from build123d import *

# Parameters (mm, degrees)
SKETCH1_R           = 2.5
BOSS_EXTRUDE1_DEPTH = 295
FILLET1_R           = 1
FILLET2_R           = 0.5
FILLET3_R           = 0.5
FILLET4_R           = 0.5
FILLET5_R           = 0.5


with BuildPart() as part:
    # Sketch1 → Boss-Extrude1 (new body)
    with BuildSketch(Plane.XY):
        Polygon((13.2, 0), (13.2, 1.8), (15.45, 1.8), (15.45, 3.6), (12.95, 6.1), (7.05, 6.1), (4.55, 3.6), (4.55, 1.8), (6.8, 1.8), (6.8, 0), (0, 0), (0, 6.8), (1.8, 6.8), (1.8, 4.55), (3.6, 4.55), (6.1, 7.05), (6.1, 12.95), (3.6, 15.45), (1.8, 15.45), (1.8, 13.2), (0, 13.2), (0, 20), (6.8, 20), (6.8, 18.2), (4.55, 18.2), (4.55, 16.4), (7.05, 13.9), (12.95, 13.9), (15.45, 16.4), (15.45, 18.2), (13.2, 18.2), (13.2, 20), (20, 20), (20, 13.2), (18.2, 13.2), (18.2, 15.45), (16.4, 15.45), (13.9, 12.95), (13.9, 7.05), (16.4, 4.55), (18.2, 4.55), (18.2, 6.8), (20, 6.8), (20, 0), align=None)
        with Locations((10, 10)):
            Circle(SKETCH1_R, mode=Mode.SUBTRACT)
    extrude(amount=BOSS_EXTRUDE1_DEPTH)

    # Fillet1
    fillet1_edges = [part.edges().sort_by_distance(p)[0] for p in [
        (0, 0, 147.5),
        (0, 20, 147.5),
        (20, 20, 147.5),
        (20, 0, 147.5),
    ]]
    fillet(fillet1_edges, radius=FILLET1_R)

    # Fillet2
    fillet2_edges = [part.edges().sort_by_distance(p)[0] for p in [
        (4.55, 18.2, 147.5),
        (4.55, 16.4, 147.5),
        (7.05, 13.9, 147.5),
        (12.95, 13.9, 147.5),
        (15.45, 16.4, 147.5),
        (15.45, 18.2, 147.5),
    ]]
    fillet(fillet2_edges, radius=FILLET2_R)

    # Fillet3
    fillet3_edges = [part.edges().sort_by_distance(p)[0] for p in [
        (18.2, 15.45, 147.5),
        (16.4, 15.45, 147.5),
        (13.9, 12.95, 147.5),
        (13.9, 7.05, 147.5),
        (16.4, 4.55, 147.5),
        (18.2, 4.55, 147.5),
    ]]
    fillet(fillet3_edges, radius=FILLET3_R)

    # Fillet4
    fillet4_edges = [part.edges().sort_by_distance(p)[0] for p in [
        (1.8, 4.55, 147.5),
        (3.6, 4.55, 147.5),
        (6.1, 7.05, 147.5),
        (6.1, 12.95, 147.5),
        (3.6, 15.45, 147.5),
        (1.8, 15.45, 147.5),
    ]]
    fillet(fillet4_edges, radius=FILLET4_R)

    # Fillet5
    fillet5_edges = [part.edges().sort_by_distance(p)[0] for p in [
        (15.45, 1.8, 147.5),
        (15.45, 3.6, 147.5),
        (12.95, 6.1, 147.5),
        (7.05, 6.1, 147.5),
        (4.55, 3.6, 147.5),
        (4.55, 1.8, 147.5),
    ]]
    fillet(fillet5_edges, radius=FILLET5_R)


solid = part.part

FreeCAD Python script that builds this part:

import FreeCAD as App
import Part
import Sketcher
Q = App.Units.Quantity


def edges_at(feature, points):
    """Names of the edges that pass closest to the given points."""
    edges = feature.Shape.Edges
    near = lambda p: min(range(len(edges)), key=lambda i: edges[i].distToShape(Part.Vertex(*p))[0])
    return sorted({f"Edge{near(p) + 1}" for p in points})

doc = App.newDocument("Part")
body = doc.addObject("PartDesign::Body", "Body")

# Sketch on XY plane
sketch1 = doc.addObject("Sketcher::SketchObject", "Sketch")
body.addObject(sketch1)
sketch1.AttachmentSupport = (doc.XY_Plane, [""])
sketch1.MapMode = "FlatFace"
sketch1.addGeometry([
    Part.LineSegment(App.Vector(13.2, 1.8, 0), App.Vector(13.2, 0, 0)),  # 0
    Part.LineSegment(App.Vector(13.2, 0, 0), App.Vector(20, 0, 0)),  # 1
    Part.LineSegment(App.Vector(20, 0, 0), App.Vector(20, 6.8, 0)),  # 2
    Part.LineSegment(App.Vector(20, 6.8, 0), App.Vector(18.2, 6.8, 0)),  # 3
    Part.LineSegment(App.Vector(18.2, 6.8, 0), App.Vector(18.2, 4.5, 0)),  # 4
    Part.LineSegment(App.Vector(18.2, 4.5, 0), App.Vector(16.4, 4.5, 0)),  # 5
    Part.LineSegment(App.Vector(16.4, 4.5, 0), App.Vector(13.9, 7, 0)),  # 6
    Part.LineSegment(App.Vector(13.9, 7, 0), App.Vector(13.9, 12.9, 0)),  # 7
    Part.LineSegment(App.Vector(13.9, 12.9, 0), App.Vector(16.4, 15.4, 0)),  # 8
    Part.LineSegment(App.Vector(16.4, 15.4, 0), App.Vector(18.2, 15.4, 0)),  # 9
    Part.LineSegment(App.Vector(18.2, 15.4, 0), App.Vector(18.2, 13.2, 0)),  # 10
    Part.LineSegment(App.Vector(18.2, 13.2, 0), App.Vector(20, 13.2, 0)),  # 11
    Part.LineSegment(App.Vector(20, 13.2, 0), App.Vector(20, 20, 0)),  # 12
    Part.LineSegment(App.Vector(20, 20, 0), App.Vector(13.2, 20, 0)),  # 13
    Part.LineSegment(App.Vector(13.2, 20, 0), App.Vector(13.2, 18.2, 0)),  # 14
    Part.LineSegment(App.Vector(13.2, 18.2, 0), App.Vector(15.4, 18.2, 0)),  # 15
    Part.LineSegment(App.Vector(15.4, 18.2, 0), App.Vector(15.4, 16.4, 0)),  # 16
    Part.LineSegment(App.Vector(15.4, 16.4, 0), App.Vector(12.9, 13.9, 0)),  # 17
    Part.LineSegment(App.Vector(12.9, 13.9, 0), App.Vector(7, 13.9, 0)),  # 18
    Part.LineSegment(App.Vector(7, 13.9, 0), App.Vector(4.5, 16.4, 0)),  # 19
    Part.LineSegment(App.Vector(4.5, 16.4, 0), App.Vector(4.5, 18.2, 0)),  # 20
    Part.LineSegment(App.Vector(4.5, 18.2, 0), App.Vector(6.8, 18.2, 0)),  # 21
    Part.LineSegment(App.Vector(6.8, 18.2, 0), App.Vector(6.8, 20, 0)),  # 22
    Part.LineSegment(App.Vector(6.8, 20, 0), App.Vector(0, 20, 0)),  # 23
    Part.LineSegment(App.Vector(0, 20, 0), App.Vector(0, 13.2, 0)),  # 24
    Part.LineSegment(App.Vector(0, 13.2, 0), App.Vector(1.8, 13.2, 0)),  # 25
    Part.LineSegment(App.Vector(1.8, 13.2, 0), App.Vector(1.8, 15.4, 0)),  # 26
    Part.LineSegment(App.Vector(1.8, 15.4, 0), App.Vector(3.6, 15.4, 0)),  # 27
    Part.LineSegment(App.Vector(3.6, 15.4, 0), App.Vector(6.1, 12.9, 0)),  # 28
    Part.LineSegment(App.Vector(6.1, 12.9, 0), App.Vector(6.1, 7, 0)),  # 29
    Part.LineSegment(App.Vector(6.1, 7, 0), App.Vector(3.6, 4.5, 0)),  # 30
    Part.LineSegment(App.Vector(3.6, 4.5, 0), App.Vector(1.8, 4.5, 0)),  # 31
    Part.LineSegment(App.Vector(1.8, 4.5, 0), App.Vector(1.8, 6.8, 0)),  # 32
    Part.LineSegment(App.Vector(1.8, 6.8, 0), App.Vector(0, 6.8, 0)),  # 33
    Part.LineSegment(App.Vector(0, 6.8, 0), App.Vector(0, 0, 0)),  # 34
    Part.LineSegment(App.Vector(0, 0, 0), App.Vector(6.8, 0, 0)),  # 35
    Part.LineSegment(App.Vector(6.8, 0, 0), App.Vector(6.8, 1.8, 0)),  # 36
    Part.LineSegment(App.Vector(6.8, 1.8, 0), App.Vector(4.5, 1.8, 0)),  # 37
    Part.LineSegment(App.Vector(4.5, 1.8, 0), App.Vector(4.5, 3.6, 0)),  # 38
    Part.LineSegment(App.Vector(4.5, 3.6, 0), App.Vector(7, 6.1, 0)),  # 39
    Part.LineSegment(App.Vector(7, 6.1, 0), App.Vector(12.9, 6.1, 0)),  # 40
    Part.LineSegment(App.Vector(12.9, 6.1, 0), App.Vector(15.4, 3.6, 0)),  # 41
    Part.LineSegment(App.Vector(15.4, 3.6, 0), App.Vector(15.4, 1.8, 0)),  # 42
    Part.LineSegment(App.Vector(15.4, 1.8, 0), App.Vector(13.2, 1.8, 0)),  # 43
    Part.Circle(App.Vector(10, 10, 0), App.Vector(0, 0, 1), 2.5),  # 44
], False)
sketch1.addConstraint([
    Sketcher.Constraint("Coincident", 0, 2, 1, 1),
    Sketcher.Constraint("Coincident", 1, 2, 2, 1),
    Sketcher.Constraint("Coincident", 2, 2, 3, 1),
    Sketcher.Constraint("Coincident", 3, 2, 4, 1),
    Sketcher.Constraint("Coincident", 4, 2, 5, 1),
    Sketcher.Constraint("Coincident", 5, 2, 6, 1),
    Sketcher.Constraint("Coincident", 6, 2, 7, 1),
    Sketcher.Constraint("Coincident", 7, 2, 8, 1),
    Sketcher.Constraint("Coincident", 8, 2, 9, 1),
    Sketcher.Constraint("Coincident", 9, 2, 10, 1),
    Sketcher.Constraint("Coincident", 10, 2, 11, 1),
    Sketcher.Constraint("Coincident", 11, 2, 12, 1),
    Sketcher.Constraint("Coincident", 12, 2, 13, 1),
    Sketcher.Constraint("Coincident", 13, 2, 14, 1),
    Sketcher.Constraint("Coincident", 14, 2, 15, 1),
    Sketcher.Constraint("Coincident", 15, 2, 16, 1),
    Sketcher.Constraint("Coincident", 16, 2, 17, 1),
    Sketcher.Constraint("Coincident", 17, 2, 18, 1),
    Sketcher.Constraint("Coincident", 18, 2, 19, 1),
    Sketcher.Constraint("Coincident", 19, 2, 20, 1),
    Sketcher.Constraint("Coincident", 20, 2, 21, 1),
    Sketcher.Constraint("Coincident", 21, 2, 22, 1),
    Sketcher.Constraint("Coincident", 22, 2, 23, 1),
    Sketcher.Constraint("Coincident", 23, 2, 24, 1),
    Sketcher.Constraint("Coincident", 24, 2, 25, 1),
    Sketcher.Constraint("Coincident", 25, 2, 26, 1),
    Sketcher.Constraint("Coincident", 26, 2, 27, 1),
    Sketcher.Constraint("Coincident", 27, 2, 28, 1),
    Sketcher.Constraint("Coincident", 28, 2, 29, 1),
    Sketcher.Constraint("Coincident", 29, 2, 30, 1),
    Sketcher.Constraint("Coincident", 30, 2, 31, 1),
    Sketcher.Constraint("Coincident", 31, 2, 32, 1),
    Sketcher.Constraint("Coincident", 32, 2, 33, 1),
    Sketcher.Constraint("Coincident", 33, 2, 34, 1),
    Sketcher.Constraint("Coincident", 34, 2, 35, 1),
    Sketcher.Constraint("Coincident", 35, 2, 36, 1),
    Sketcher.Constraint("Coincident", 36, 2, 37, 1),
    Sketcher.Constraint("Coincident", 37, 2, 38, 1),
    Sketcher.Constraint("Coincident", 38, 2, 39, 1),
    Sketcher.Constraint("Coincident", 39, 2, 40, 1),
    Sketcher.Constraint("Coincident", 40, 2, 41, 1),
    Sketcher.Constraint("Coincident", 41, 2, 42, 1),
    Sketcher.Constraint("Coincident", 42, 2, 43, 1),
    Sketcher.Constraint("Coincident", 43, 2, 0, 1),
    Sketcher.Constraint("Vertical", 0),
    Sketcher.Constraint("Horizontal", 1),
    Sketcher.Constraint("Vertical", 2),
    Sketcher.Constraint("Horizontal", 3),
    Sketcher.Constraint("Vertical", 4),
    Sketcher.Constraint("Horizontal", 5),
    Sketcher.Constraint("Vertical", 7),
    Sketcher.Constraint("Horizontal", 9),
    Sketcher.Constraint("Vertical", 10),
    Sketcher.Constraint("Horizontal", 11),
    Sketcher.Constraint("Vertical", 12),
    Sketcher.Constraint("Horizontal", 13),
    Sketcher.Constraint("Vertical", 14),
    Sketcher.Constraint("Horizontal", 15),
    Sketcher.Constraint("Vertical", 16),
    Sketcher.Constraint("Horizontal", 18),
    Sketcher.Constraint("Vertical", 20),
    Sketcher.Constraint("Horizontal", 21),
    Sketcher.Constraint("Vertical", 22),
    Sketcher.Constraint("Horizontal", 23),
    Sketcher.Constraint("Vertical", 24),
    Sketcher.Constraint("Horizontal", 25),
    Sketcher.Constraint("Vertical", 26),
    Sketcher.Constraint("Horizontal", 27),
    Sketcher.Constraint("Vertical", 29),
    Sketcher.Constraint("Horizontal", 31),
    Sketcher.Constraint("Vertical", 32),
    Sketcher.Constraint("Horizontal", 33),
    Sketcher.Constraint("Vertical", 34),
    Sketcher.Constraint("Horizontal", 35),
    Sketcher.Constraint("Vertical", 36),
    Sketcher.Constraint("Horizontal", 37),
    Sketcher.Constraint("Vertical", 38),
    Sketcher.Constraint("Horizontal", 40),
    Sketcher.Constraint("Vertical", 42),
    Sketcher.Constraint("Horizontal", 43),
    Sketcher.Constraint("Coincident", 34, 2, -1, 1),
    Sketcher.Constraint("PointOnObject", 0, 2, -1),
    Sketcher.Constraint("PointOnObject", 23, 2, -2),
    Sketcher.Constraint("Perpendicular", 6, 8),
    Sketcher.Constraint("Parallel", 8, 17),
    Sketcher.Constraint("Perpendicular", 17, 19),
    Sketcher.Constraint("Parallel", 19, 28),
    Sketcher.Constraint("Perpendicular", 28, 30),
    Sketcher.Constraint("Parallel", 30, 39),
    Sketcher.Constraint("Perpendicular", 39, 41),
    Sketcher.Constraint("Horizontal", 16, 2, 19, 2),
    Sketcher.Constraint("Horizontal", 15, 2, 20, 2),
    Sketcher.Constraint("Horizontal", 13, 2, 22, 2),
    Sketcher.Constraint("Horizontal", 11, 2, 24, 2),
    Sketcher.Constraint("Horizontal", 9, 2, 26, 2),
    Sketcher.Constraint("Horizontal", 7, 2, 28, 2),
    Sketcher.Constraint("Horizontal", 6, 2, 29, 2),
    Sketcher.Constraint("Horizontal", 5, 2, 30, 2),
    Sketcher.Constraint("Horizontal", 3, 2, 32, 2),
    Sketcher.Constraint("Horizontal", 38, 2, 41, 2),
    Sketcher.Constraint("Horizontal", 37, 2, 42, 2),
    Sketcher.Constraint("Vertical", 5, 2, 8, 2),
    Sketcher.Constraint("Vertical", 4, 2, 9, 2),
    Sketcher.Constraint("Vertical", 2, 2, 11, 2),
    Sketcher.Constraint("Vertical", 0, 2, 13, 2),
    Sketcher.Constraint("Vertical", 27, 2, 30, 2),
    Sketcher.Constraint("Vertical", 26, 2, 31, 2),
    Sketcher.Constraint("Vertical", 22, 2, 35, 2),
    Sketcher.Constraint("Vertical", 20, 2, 37, 2),
    Sketcher.Constraint("Vertical", 18, 2, 39, 2),
    Sketcher.Constraint("Vertical", 17, 2, 40, 2),
    Sketcher.Constraint("Equal", 3, 5),
    Sketcher.Constraint("Equal", 15, 21),
    Sketcher.Constraint("Equal", 13, 23),
    Sketcher.Constraint("Equal", 11, 25),
    Sketcher.Constraint("Equal", 25, 27),
    Sketcher.Constraint("Equal", 33, 0),
    Sketcher.Constraint("Equal", 35, 2),
    Sketcher.Constraint("Equal", 43, 4),
    Sketcher.Constraint("Equal", 40, 7),
    Sketcher.Constraint("Equal", 4, 10),
    Sketcher.Constraint("Equal", 2, 12),
    Sketcher.Constraint("Equal", 0, 14),
    Sketcher.Constraint("Equal", 14, 16),
    Sketcher.Constraint("Equal", 36, 38),
    Sketcher.Constraint("Equal", 8, 17),
    Sketcher.Constraint("Diameter", 44, Q("5 mm")),
    Sketcher.Constraint("DistanceX", 1, 1, 1, 2, Q("6.8 mm")),
    Sketcher.Constraint("DistanceX", 3, 2, 3, 1, Q("1.8 mm")),
    Sketcher.Constraint("DistanceX", 18, 2, 18, 1, Q("5.9 mm")),
    Sketcher.Constraint("DistanceX", -1, 1, 44, 3, Q("10 mm")),
    Sketcher.Constraint("DistanceY", -1, 1, 44, 3, Q("10 mm")),
    Sketcher.Constraint("DistanceX", -1, 1, 1, 2, Q("20 mm")),
    Sketcher.Constraint("DistanceX", 15, 1, 15, 2, Q("2.25 mm")),
])
pad1 = doc.addObject("PartDesign::Pad", "Pad")
body.addObject(pad1)
pad1.Profile = sketch1
pad1.Length = 295
doc.recompute()

fillet = doc.addObject("PartDesign::Fillet", "Fillet")
body.addObject(fillet)
fillet.Base = (pad1, edges_at(pad1, [
    (0, 0, 147.5),
    (0, 20, 147.5),
    (20, 20, 147.5),
    (20, 0, 147.5),
]))
fillet.Radius = 1
doc.recompute()

fillet2 = doc.addObject("PartDesign::Fillet", "Fillet001")
body.addObject(fillet2)
fillet2.Base = (fillet, edges_at(fillet, [
    (4.55, 18.2, 147.5),
    (4.55, 16.4, 147.5),
    (7.05, 13.9, 147.5),
    (12.95, 13.9, 147.5),
    (15.45, 16.4, 147.5),
    (15.45, 18.2, 147.5),
]))
fillet2.Radius = 0.5
doc.recompute()

fillet3 = doc.addObject("PartDesign::Fillet", "Fillet002")
body.addObject(fillet3)
fillet3.Base = (fillet2, edges_at(fillet2, [
    (18.2, 15.45, 147.5),
    (16.4, 15.45, 147.5),
    (13.9, 12.95, 147.5),
    (13.9, 7.05, 147.5),
    (16.4, 4.55, 147.5),
    (18.2, 4.55, 147.5),
]))
fillet3.Radius = 0.5
doc.recompute()

fillet4 = doc.addObject("PartDesign::Fillet", "Fillet003")
body.addObject(fillet4)
fillet4.Base = (fillet3, edges_at(fillet3, [
    (1.8, 4.55, 147.5),
    (3.6, 4.55, 147.5),
    (6.1, 7.05, 147.5),
    (6.1, 12.95, 147.5),
    (3.6, 15.45, 147.5),
    (1.8, 15.45, 147.5),
]))
fillet4.Radius = 0.5
doc.recompute()

fillet5 = doc.addObject("PartDesign::Fillet", "Fillet004")
body.addObject(fillet5)
fillet5.Base = (fillet4, edges_at(fillet4, [
    (15.45, 1.8, 147.5),
    (15.45, 3.6, 147.5),
    (12.95, 6.1, 147.5),
    (7.05, 6.1, 147.5),
    (4.55, 3.6, 147.5),
    (4.55, 1.8, 147.5),
]))
fillet5.Radius = 0.5

doc.recompute()
